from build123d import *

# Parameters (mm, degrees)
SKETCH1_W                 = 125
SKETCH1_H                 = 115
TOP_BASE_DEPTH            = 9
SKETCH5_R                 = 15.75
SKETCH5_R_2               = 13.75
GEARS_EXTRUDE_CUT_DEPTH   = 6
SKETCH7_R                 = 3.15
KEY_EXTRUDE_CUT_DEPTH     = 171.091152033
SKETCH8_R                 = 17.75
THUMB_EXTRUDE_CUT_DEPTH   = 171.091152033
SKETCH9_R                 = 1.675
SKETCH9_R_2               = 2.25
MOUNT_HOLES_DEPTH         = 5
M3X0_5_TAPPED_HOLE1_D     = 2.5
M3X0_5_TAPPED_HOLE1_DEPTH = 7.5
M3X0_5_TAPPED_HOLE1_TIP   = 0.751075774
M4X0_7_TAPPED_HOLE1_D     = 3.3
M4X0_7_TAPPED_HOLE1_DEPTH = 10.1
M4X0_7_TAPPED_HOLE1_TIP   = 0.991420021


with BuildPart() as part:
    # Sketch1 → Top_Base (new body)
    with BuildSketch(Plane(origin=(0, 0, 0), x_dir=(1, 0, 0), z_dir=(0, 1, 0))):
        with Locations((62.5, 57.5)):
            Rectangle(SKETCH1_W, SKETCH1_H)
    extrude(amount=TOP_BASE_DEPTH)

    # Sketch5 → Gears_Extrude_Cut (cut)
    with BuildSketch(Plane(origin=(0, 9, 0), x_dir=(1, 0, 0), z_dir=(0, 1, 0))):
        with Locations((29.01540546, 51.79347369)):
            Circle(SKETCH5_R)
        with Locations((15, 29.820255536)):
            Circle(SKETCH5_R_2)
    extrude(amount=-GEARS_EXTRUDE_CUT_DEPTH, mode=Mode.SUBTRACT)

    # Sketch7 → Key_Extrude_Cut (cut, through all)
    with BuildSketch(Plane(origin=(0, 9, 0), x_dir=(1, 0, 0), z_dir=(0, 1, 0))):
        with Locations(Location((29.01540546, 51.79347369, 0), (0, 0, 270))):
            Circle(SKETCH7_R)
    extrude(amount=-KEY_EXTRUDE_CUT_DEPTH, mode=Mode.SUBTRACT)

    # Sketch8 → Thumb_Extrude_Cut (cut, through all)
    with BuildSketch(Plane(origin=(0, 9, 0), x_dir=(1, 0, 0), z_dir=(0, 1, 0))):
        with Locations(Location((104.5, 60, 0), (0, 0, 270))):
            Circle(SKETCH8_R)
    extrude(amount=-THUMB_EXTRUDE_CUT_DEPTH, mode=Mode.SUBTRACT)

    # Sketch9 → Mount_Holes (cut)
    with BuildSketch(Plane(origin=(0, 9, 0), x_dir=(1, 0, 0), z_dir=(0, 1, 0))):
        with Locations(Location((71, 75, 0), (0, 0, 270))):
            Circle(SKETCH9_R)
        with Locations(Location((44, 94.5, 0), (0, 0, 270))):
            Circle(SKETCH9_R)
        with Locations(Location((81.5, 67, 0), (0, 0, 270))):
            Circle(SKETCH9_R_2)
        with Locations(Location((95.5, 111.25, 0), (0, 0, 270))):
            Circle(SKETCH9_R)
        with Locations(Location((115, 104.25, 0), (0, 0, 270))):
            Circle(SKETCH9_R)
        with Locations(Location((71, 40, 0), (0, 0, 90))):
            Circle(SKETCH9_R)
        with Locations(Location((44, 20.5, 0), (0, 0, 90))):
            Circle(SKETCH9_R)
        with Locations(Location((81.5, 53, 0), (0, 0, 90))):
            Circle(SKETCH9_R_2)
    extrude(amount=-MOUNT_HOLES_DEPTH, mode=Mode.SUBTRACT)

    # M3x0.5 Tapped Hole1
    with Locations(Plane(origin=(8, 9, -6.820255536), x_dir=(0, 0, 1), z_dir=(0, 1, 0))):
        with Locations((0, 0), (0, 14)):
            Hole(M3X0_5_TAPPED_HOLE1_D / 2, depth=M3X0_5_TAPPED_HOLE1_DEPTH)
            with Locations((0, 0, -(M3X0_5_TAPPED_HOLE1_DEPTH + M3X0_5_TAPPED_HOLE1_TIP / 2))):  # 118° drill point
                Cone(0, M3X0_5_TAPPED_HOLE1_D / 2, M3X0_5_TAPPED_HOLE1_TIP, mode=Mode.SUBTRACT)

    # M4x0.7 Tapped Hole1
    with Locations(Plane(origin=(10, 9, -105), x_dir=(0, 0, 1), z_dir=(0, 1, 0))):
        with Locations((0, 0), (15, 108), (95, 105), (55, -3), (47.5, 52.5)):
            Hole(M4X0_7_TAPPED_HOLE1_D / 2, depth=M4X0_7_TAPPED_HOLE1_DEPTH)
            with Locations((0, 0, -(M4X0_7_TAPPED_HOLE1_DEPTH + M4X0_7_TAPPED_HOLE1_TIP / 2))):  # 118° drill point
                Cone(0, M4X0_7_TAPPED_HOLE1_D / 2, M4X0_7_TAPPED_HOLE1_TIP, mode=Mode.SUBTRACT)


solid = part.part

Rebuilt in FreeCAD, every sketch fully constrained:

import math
import FreeCAD as App
import Part
import Sketcher
from FreeCAD import Vector

doc = App.newDocument("Part")
body = doc.addObject("PartDesign::Body", "Body")

sketch1 = body.newObject("Sketcher::SketchObject", "Sketch")
sketch1.AttachmentSupport = (doc.getObject("XZ_Plane"), [""])
sketch1.MapMode = "FlatFace"
sketch1.addGeometry([
    Part.LineSegment(Vector(0, -115, 0), Vector(0, 0, 0)),
    Part.LineSegment(Vector(0, 0, 0), Vector(125, 0, 0)),
    Part.LineSegment(Vector(125, 0, 0), Vector(125, -115, 0)),
    Part.LineSegment(Vector(125, -115, 0), Vector(0, -115, 0)),
], False)
sketch1.addConstraint([
    Sketcher.Constraint("Coincident", 0, 2, 1, 1),
    Sketcher.Constraint("Coincident", 1, 2, 2, 1),
    Sketcher.Constraint("Coincident", 2, 2, 3, 1),
    Sketcher.Constraint("Coincident", 3, 2, 0, 1),
    Sketcher.Constraint("Vertical", 0),
    Sketcher.Constraint("Horizontal", 1),
    Sketcher.Constraint("Vertical", 2),
    Sketcher.Constraint("Horizontal", 3),
    Sketcher.Constraint("Coincident", 0, 2, -1, 1),
    Sketcher.Constraint("DistanceX", 1, 1, 1, 2, 125.0),
    Sketcher.Constraint("DistanceY", 0, 1, 0, 2, 115.0),
])
pad1 = body.newObject("PartDesign::Pad", "Pad")
pad1.Profile = sketch1
pad1.Length = 9
pad1.Reversed = True

sketch2 = body.newObject("Sketcher::SketchObject", "Sketch001")
sketch2.AttachmentSupport = (doc.getObject("XZ_Plane"), [""])
sketch2.MapMode = "FlatFace"
sketch2.AttachmentOffset = App.Placement(Vector(0, 0, -9), App.Rotation())
sketch2.addGeometry([
    Part.ArcOfCircle(Part.Circle(Vector(29, -52, 0), Vector(0, 0, 1), 16), math.radians(148), math.radians(457)),
    Part.ArcOfCircle(Part.Circle(Vector(15, -30, 0), Vector(0, 0, 1), 14), math.radians(-27), math.radians(272)),
], False)
sketch2.addConstraint([
    Sketcher.Constraint("Coincident", 0, 1, 1, 2),
    Sketcher.Constraint("Coincident", 1, 1, 0, 2),
    Sketcher.Constraint("Radius", 0, 15.75),
    Sketcher.Constraint("Radius", 1, 13.75),
    Sketcher.Constraint("DistanceX", -1, 1, 1, 3, 15.0),
    Sketcher.Constraint("DistanceX", -1, 1, 1, 1, 27.207692),
    Sketcher.Constraint("DistanceY", 1, 1, -1, 1, 36.147558),
    Sketcher.Constraint("DistanceY", 0, 3, 1, 3, 21.973218),
])
pocket1 = body.newObject("PartDesign::Pocket", "Pocket")
pocket1.Profile = sketch2
pocket1.Length = 6
pocket1.Reversed = True

sketch3 = body.newObject("Sketcher::SketchObject", "Sketch002")
sketch3.AttachmentSupport = (doc.getObject("XZ_Plane"), [""])
sketch3.MapMode = "FlatFace"
sketch3.AttachmentOffset = App.Placement(Vector(0, 0, -9), App.Rotation())
sketch3.addGeometry(Part.Circle(Vector(29, -51.8, 0), Vector(0, 0, 1), 3.1), False)
sketch3.addConstraint([
    Sketcher.Constraint("Diameter", 0, 6.3),
    Sketcher.Constraint("DistanceX", -1, 1, 0, 3, 29.015405),
    Sketcher.Constraint("DistanceY", 0, 3, -1, 1, 51.793474),
])
pocket2 = body.newObject("PartDesign::Pocket", "Pocket001")
pocket2.Profile = sketch3
pocket2.Type = "ThroughAll"
pocket2.Reversed = True

sketch4 = body.newObject("Sketcher::SketchObject", "Sketch003")
sketch4.AttachmentSupport = (doc.getObject("XZ_Plane"), [""])
sketch4.MapMode = "FlatFace"
sketch4.AttachmentOffset = App.Placement(Vector(0, 0, -9), App.Rotation())
sketch4.addGeometry(Part.Circle(Vector(104, -60, 0), Vector(0, 0, 1), 18), False)
sketch4.addConstraint([
    Sketcher.Constraint("Diameter", 0, 35.5),
    Sketcher.Constraint("DistanceY", 0, 3, -1, 1, 60.0),
    Sketcher.Constraint("DistanceX", -1, 1, 0, 3, 104.5),
])
pocket3 = body.newObject("PartDesign::Pocket", "Pocket002")
pocket3.Profile = sketch4
pocket3.Type = "ThroughAll"
pocket3.Reversed = True

sketch5 = body.newObject("Sketcher::SketchObject", "Sketch004")
sketch5.AttachmentSupport = (doc.getObject("XZ_Plane"), [""])
sketch5.MapMode = "FlatFace"
sketch5.AttachmentOffset = App.Placement(Vector(0, 0, -9), App.Rotation())
sketch5.addGeometry([
    Part.Circle(Vector(71, -75, 0), Vector(0, 0, 1), 1.7),
    Part.Circle(Vector(44, -94.5, 0), Vector(0, 0, 1), 1.7),
    Part.Circle(Vector(81.5, -67, 0), Vector(0, 0, 1), 2.2),
    Part.Circle(Vector(95.5, -111.2, 0), Vector(0, 0, 1), 1.7),
    Part.Circle(Vector(115, -104.2, 0), Vector(0, 0, 1), 1.7),
    Part.Circle(Vector(71, -40, 0), Vector(0, 0, 1), 1.7),
    Part.Circle(Vector(44, -20.5, 0), Vector(0, 0, 1), 1.7),
    Part.Circle(Vector(81.5, -53, 0), Vector(0, 0, 1), 2.2),
], False)
sketch5.addConstraint([
    Sketcher.Constraint("Equal", 0, 1),
    Sketcher.Constraint("Equal", 1, 3),
    Sketcher.Constraint("Equal", 3, 4),
    Sketcher.Constraint("Equal", 4, 5),
    Sketcher.Constraint("Equal", 5, 6),
    Sketcher.Constraint("Equal", 2, 7),
    Sketcher.Constraint("Vertical", 0, 3, 5, 3),
    Sketcher.Constraint("Vertical", 1, 3, 6, 3),
    Sketcher.Constraint("Vertical", 2, 3, 7, 3),
    Sketcher.Constraint("Diameter", 2, 4.5),
    Sketcher.Constraint("Diameter", 0, 3.35),
    Sketcher.Constraint("DistanceX", -1, 1, 0, 3, 71.0),
    Sketcher.Constraint("DistanceY", 0, 3, -1, 1, 75.0),
    Sketcher.Constraint("DistanceX", -1, 1, 1, 3, 44.0),
    Sketcher.Constraint("DistanceY", 2, 3, -1, 1, 67.0),
    Sketcher.Constraint("DistanceX", -1, 1, 4, 3, 115.0),
    Sketcher.Constraint("DistanceY", 5, 3, -1, 1, 40.0),
    Sketcher.Constraint("DistanceY", 7, 3, -1, 1, 53.0),
    Sketcher.Constraint("DistanceX", 2, 3, 3, 3, 14.0),
    Sketcher.Constraint("DistanceY", 3, 3, 4, 3, 7.0),
    Sketcher.Constraint("DistanceY", 1, 3, 6, 3, 74.0),
    Sketcher.Constraint("DistanceY", 1, 3, -1, 1, 94.5),
    Sketcher.Constraint("DistanceX", -1, 1, 2, 3, 81.5),
    Sketcher.Constraint("DistanceY", 3, 3, -1, 1, 111.25),
])
pocket4 = body.newObject("PartDesign::Pocket", "Pocket003")
pocket4.Profile = sketch5
pocket4.Length = 5
pocket4.Reversed = True

sketch6 = body.newObject("Sketcher::SketchObject", "Sketch005")
sketch6.AttachmentSupport = (doc.getObject("XZ_Plane"), [""])
sketch6.MapMode = "FlatFace"
sketch6.AttachmentOffset = App.Placement(Vector(0, 0, -9), App.Rotation())
sketch6.addGeometry([
    Part.Circle(Vector(8, -6.8, 0), Vector(0, 0, 1), 1.2),
    Part.Circle(Vector(22, -6.8, 0), Vector(0, 0, 1), 1.2),
], False)
sketch6.addConstraint([
    Sketcher.Constraint("Equal", 0, 1),
    Sketcher.Constraint("Horizontal", 0, 3, 1, 3),
    Sketcher.Constraint("Diameter", 0, 2.5),
    Sketcher.Constraint("DistanceX", -1, 1, 0, 3, 8.0),
    Sketcher.Constraint("DistanceX", -1, 1, 1, 3, 22.0),
    Sketcher.Constraint("DistanceY", 0, 3, -1, 1, 6.820256),
])
doc.recompute()
hole = body.newObject("PartDesign::Hole", "Hole")
hole.Profile = sketch6
hole.ThreadType = "None"
hole.Diameter = 2.5
hole.DepthType = "Dimension"
hole.Depth = 7.5
hole.DrillPoint = "Angled"
hole.DrillPointAngle = 118
hole.Reversed = True

sketch7 = body.newObject("Sketcher::SketchObject", "Sketch006")
sketch7.AttachmentSupport = (doc.getObject("XZ_Plane"), [""])
sketch7.MapMode = "FlatFace"
sketch7.AttachmentOffset = App.Placement(Vector(0, 0, -9), App.Rotation())
sketch7.addGeometry([
    Part.Circle(Vector(10, -105, 0), Vector(0, 0, 1), 1.6),
    Part.Circle(Vector(118, -90, 0), Vector(0, 0, 1), 1.6),
    Part.Circle(Vector(115, -10, 0), Vector(0, 0, 1), 1.6),
    Part.Circle(Vector(7, -50, 0), Vector(0, 0, 1), 1.6),
    Part.Circle(Vector(62.5, -57.5, 0), Vector(0, 0, 1), 1.6),
], False)
sketch7.addConstraint([
    Sketcher.Constraint("Equal", 0, 1),
    Sketcher.Constraint("Equal", 1, 2),
    Sketcher.Constraint("Equal", 2, 3),
    Sketcher.Constraint("Equal", 3, 4),
    Sketcher.Constraint("Diameter", 0, 3.3),
    Sketcher.Constraint("DistanceX", -1, 1, 0, 3, 10.0),
    Sketcher.Constraint("DistanceY", 0, 3, -1, 1, 105.0),
    Sketcher.Constraint("DistanceX", -1, 1, 1, 3, 118.0),
    Sketcher.Constraint("DistanceY", 1, 3, -1, 1, 90.0),
    Sketcher.Constraint("DistanceX", -1, 1, 2, 3, 115.0),
    Sketcher.Constraint("DistanceY", 2, 3, -1, 1, 10.0),
    Sketcher.Constraint("DistanceX", -1, 1, 3, 3, 7.0),
    Sketcher.Constraint("DistanceY", 3, 3, -1, 1, 50.0),
    Sketcher.Constraint("DistanceX", -1, 1, 4, 3, 62.5),
    Sketcher.Constraint("DistanceY", 4, 3, -1, 1, 57.5),
])
doc.recompute()
hole2 = body.newObject("PartDesign::Hole", "Hole001")
hole2.Profile = sketch7
hole2.ThreadType = "None"
hole2.Diameter = 3.3
hole2.DepthType = "Dimension"
hole2.Depth = 10.1
hole2.DrillPoint = "Angled"
hole2.DrillPointAngle = 118
hole2.Reversed = True

doc.recompute()
